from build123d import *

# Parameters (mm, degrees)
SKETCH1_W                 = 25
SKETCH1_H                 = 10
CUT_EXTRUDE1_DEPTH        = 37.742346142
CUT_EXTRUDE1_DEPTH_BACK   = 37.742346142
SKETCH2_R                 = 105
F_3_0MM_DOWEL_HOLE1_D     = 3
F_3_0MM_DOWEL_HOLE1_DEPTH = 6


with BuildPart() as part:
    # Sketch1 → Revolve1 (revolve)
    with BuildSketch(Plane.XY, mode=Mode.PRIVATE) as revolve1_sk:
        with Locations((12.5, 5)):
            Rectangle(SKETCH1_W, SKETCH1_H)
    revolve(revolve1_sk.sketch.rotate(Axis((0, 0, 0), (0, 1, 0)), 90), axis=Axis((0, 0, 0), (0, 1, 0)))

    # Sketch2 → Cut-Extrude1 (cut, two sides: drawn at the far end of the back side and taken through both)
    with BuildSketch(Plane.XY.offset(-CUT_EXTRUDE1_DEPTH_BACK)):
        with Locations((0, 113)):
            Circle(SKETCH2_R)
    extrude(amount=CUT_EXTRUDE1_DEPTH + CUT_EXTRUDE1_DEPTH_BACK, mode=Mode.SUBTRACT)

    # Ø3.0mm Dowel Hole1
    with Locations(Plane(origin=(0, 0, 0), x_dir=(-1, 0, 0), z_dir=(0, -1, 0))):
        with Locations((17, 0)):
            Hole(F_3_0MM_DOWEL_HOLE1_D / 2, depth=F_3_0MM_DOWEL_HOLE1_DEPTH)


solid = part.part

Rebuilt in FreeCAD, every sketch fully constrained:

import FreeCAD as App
import Part
import Sketcher

V = App.Vector


def add_polygon(sketch, points):
    """Adds a closed chain of lines whose ends are joined by coincident constraints."""
    first, n = sketch.GeometryCount, len(points)
    for a, b in zip(points, points[1:] + points[:1]):
        sketch.addGeometry(Part.LineSegment(App.Vector(*a, 0), App.Vector(*b, 0)), False)
    for i in range(n):
        sketch.addConstraint(Sketcher.Constraint("Coincident", first + i, 2, first + (i + 1) % n, 1))

doc = App.newDocument("Part")
body = doc.addObject("PartDesign::Body", "Body")

sketch1 = body.newObject("Sketcher::SketchObject", "Sketch")
sketch1.AttachmentSupport = (doc.getObject("XY_Plane"), [""])
sketch1.MapMode = "FlatFace"
add_polygon(sketch1, [(0, 10), (0, 0), (25, 0), (25, 10)])
sketch1.addConstraint(Sketcher.Constraint("Vertical", 0))
sketch1.addConstraint(Sketcher.Constraint("Horizontal", 1))
sketch1.addConstraint(Sketcher.Constraint("Vertical", 2))
sketch1.addConstraint(Sketcher.Constraint("Horizontal", 3))
sketch1.addConstraint(Sketcher.Constraint("Coincident", 0, 2, -1, 1))
sketch1.addConstraint(Sketcher.Constraint("DistanceX", 1, 1, 1, 2, 25.0))
sketch1.addConstraint(Sketcher.Constraint("DistanceY", 0, 2, 0, 1, 10.0))
revolution = body.newObject("PartDesign::Revolution", "Revolution")
revolution.Profile = sketch1
revolution.ReferenceAxis = (sketch1, ["V_Axis"])
revolution.Angle = 360

sketch2 = body.newObject("Sketcher::SketchObject", "Sketch001")
sketch2.AttachmentSupport = (doc.getObject("XY_Plane"), [""])
sketch2.MapMode = "FlatFace"
sketch2.addGeometry(Part.Circle(V(0, 113, 0), V(0, 0, 1), 105), False)
sketch2.addConstraint(Sketcher.Constraint("PointOnObject", 0, 3, -2))
sketch2.addConstraint(Sketcher.Constraint("Diameter", 0, 210.0))
sketch2.addConstraint(Sketcher.Constraint("DistanceY", -1, 1, 0, 3, 113.0))
pocket1 = body.newObject("PartDesign::Pocket", "Pocket")
pocket1.Profile = sketch2
pocket1.Type = "ThroughAll"
pocket1.Midplane = True

sketch3 = body.newObject("Sketcher::SketchObject", "Sketch002")
sketch3.AttachmentSupport = (doc.getObject("XZ_Plane"), [""])
sketch3.MapMode = "FlatFace"
sketch3.addGeometry(Part.Circle(V(-17, 0, 0), V(0, 0, 1), 1.5), False)
sketch3.addConstraint(Sketcher.Constraint("PointOnObject", 0, 3, -1))
sketch3.addConstraint(Sketcher.Constraint("Diameter", 0, 3.0))
sketch3.addConstraint(Sketcher.Constraint("DistanceX", 0, 3, -1, 1, 17.0))
doc.recompute()
hole = body.newObject("PartDesign::Hole", "Hole")
hole.Profile = sketch3
hole.ThreadType = "None"
hole.Diameter = 3
hole.DepthType = "Dimension"
hole.Depth = 6
hole.DrillPoint = "Flat"

doc.recompute()
